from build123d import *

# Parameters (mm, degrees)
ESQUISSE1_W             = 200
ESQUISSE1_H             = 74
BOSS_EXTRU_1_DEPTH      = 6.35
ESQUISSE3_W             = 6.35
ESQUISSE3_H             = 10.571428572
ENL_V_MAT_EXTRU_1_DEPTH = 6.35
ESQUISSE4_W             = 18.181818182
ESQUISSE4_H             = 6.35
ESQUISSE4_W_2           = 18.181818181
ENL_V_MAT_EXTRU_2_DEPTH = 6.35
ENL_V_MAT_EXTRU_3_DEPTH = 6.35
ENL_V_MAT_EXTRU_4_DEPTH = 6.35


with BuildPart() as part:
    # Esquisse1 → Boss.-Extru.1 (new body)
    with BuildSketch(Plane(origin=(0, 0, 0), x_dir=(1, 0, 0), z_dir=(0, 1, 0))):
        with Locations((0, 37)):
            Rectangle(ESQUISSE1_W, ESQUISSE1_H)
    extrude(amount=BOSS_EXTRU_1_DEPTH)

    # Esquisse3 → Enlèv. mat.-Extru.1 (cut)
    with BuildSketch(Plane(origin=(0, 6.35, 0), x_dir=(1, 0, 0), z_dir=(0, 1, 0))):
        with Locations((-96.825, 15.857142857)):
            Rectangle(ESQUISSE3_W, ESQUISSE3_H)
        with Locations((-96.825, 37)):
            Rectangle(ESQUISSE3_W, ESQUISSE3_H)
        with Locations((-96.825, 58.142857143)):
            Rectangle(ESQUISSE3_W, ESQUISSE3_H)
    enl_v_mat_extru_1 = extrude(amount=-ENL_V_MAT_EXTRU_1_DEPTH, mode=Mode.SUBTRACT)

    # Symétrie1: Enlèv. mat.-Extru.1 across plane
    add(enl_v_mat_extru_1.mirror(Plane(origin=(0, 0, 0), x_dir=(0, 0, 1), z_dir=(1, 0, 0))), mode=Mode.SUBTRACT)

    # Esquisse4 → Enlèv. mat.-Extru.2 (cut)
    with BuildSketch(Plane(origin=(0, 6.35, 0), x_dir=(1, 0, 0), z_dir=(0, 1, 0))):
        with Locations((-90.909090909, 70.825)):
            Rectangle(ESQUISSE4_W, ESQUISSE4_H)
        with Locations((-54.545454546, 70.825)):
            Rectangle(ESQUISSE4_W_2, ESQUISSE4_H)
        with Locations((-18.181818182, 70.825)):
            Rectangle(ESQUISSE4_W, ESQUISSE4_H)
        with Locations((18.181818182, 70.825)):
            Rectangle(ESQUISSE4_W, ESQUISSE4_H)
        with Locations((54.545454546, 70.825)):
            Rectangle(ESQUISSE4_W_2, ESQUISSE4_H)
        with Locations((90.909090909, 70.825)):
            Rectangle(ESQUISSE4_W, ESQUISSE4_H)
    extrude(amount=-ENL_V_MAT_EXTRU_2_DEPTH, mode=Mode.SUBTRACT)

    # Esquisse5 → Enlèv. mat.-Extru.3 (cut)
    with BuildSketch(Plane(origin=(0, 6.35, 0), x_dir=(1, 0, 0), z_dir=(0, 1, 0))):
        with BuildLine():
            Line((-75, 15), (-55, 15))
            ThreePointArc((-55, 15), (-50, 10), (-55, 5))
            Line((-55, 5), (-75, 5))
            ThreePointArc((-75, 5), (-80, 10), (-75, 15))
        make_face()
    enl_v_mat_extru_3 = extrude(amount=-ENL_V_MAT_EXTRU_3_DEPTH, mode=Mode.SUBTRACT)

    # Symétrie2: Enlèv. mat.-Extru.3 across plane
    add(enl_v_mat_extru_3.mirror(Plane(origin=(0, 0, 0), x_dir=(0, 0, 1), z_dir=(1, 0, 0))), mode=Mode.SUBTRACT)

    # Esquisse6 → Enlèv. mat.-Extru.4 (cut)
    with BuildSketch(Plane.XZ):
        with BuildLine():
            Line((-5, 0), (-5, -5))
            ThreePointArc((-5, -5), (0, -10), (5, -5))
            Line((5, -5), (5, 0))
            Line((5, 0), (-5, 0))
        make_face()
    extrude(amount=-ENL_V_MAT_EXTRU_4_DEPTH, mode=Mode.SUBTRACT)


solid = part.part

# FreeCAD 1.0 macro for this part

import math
import FreeCAD as App
import Part
import Sketcher


def add_polygon(sketch, points):
    """Adds a closed chain of lines whose ends are joined by coincident constraints."""
    first, n = sketch.GeometryCount, len(points)
    for a, b in zip(points, points[1:] + points[:1]):
        sketch.addGeometry(Part.LineSegment(App.Vector(*a, 0), App.Vector(*b, 0)), False)
    for i in range(n):
        sketch.addConstraint(Sketcher.Constraint("Coincident", first + i, 2, first + (i + 1) % n, 1))

doc = App.newDocument("Part")
body = doc.addObject("PartDesign::Body", "Body")

sketch1 = body.newObject("Sketcher::SketchObject", "Sketch")
sketch1.AttachmentSupport = (doc.getObject("XZ_Plane"), [""])
sketch1.MapMode = "FlatFace"
add_polygon(sketch1, [(-100, -74), (-100, 0), (100, 0), (100, -74)])
sketch1.addConstraint(Sketcher.Constraint("Vertical", 0))
sketch1.addConstraint(Sketcher.Constraint("Horizontal", 1))
sketch1.addConstraint(Sketcher.Constraint("Vertical", 2))
sketch1.addConstraint(Sketcher.Constraint("Horizontal", 3))
sketch1.addConstraint(Sketcher.Constraint("Symmetric", 0, 2, 1, 2, -1, 1))
sketch1.addConstraint(Sketcher.Constraint("DistanceX", 1, 1, 1, 2, 200.0))
sketch1.addConstraint(Sketcher.Constraint("DistanceY", 0, 1, 0, 2, 74.0))
pad1 = body.newObject("PartDesign::Pad", "Pad")
pad1.Profile = sketch1
pad1.Length = 6.35
pad1.Reversed = True

sketch2 = body.newObject("Sketcher::SketchObject", "Sketch001")
sketch2.AttachmentSupport = (doc.getObject("XZ_Plane"), [""])
sketch2.MapMode = "FlatFace"
sketch2.AttachmentOffset = App.Placement(App.Vector(0, 0, -6.35), App.Rotation())
add_polygon(sketch2, [(-100, -21), (-100, -11), (-94, -11), (-94, -21)])
add_polygon(sketch2, [(-100, -42), (-100, -32), (-94, -32), (-94, -42)])
add_polygon(sketch2, [(-100, -63), (-100, -53), (-94, -53), (-94, -63)])
sketch2.addConstraint(Sketcher.Constraint("Vertical", 0))
sketch2.addConstraint(Sketcher.Constraint("Horizontal", 1))
sketch2.addConstraint(Sketcher.Constraint("Vertical", 2))
sketch2.addConstraint(Sketcher.Constraint("Horizontal", 3))
sketch2.addConstraint(Sketcher.Constraint("Vertical", 4))
sketch2.addConstraint(Sketcher.Constraint("Horizontal", 5))
sketch2.addConstraint(Sketcher.Constraint("Vertical", 6))
sketch2.addConstraint(Sketcher.Constraint("Horizontal", 7))
sketch2.addConstraint(Sketcher.Constraint("Vertical", 8))
sketch2.addConstraint(Sketcher.Constraint("Horizontal", 9))
sketch2.addConstraint(Sketcher.Constraint("Vertical", 10))
sketch2.addConstraint(Sketcher.Constraint("Horizontal", 11))
sketch2.addConstraint(Sketcher.Constraint("Vertical", 3, 2, 4, 2))
sketch2.addConstraint(Sketcher.Constraint("Vertical", 2, 2, 5, 2))
sketch2.addConstraint(Sketcher.Constraint("Vertical", 7, 2, 8, 2))
sketch2.addConstraint(Sketcher.Constraint("Vertical", 6, 2, 9, 2))
sketch2.addConstraint(Sketcher.Constraint("Equal", 2, 4))
sketch2.addConstraint(Sketcher.Constraint("Equal", 6, 8))
sketch2.addConstraint(Sketcher.Constraint("DistanceX", 0, 2, -1, 1, 100.0))
sketch2.addConstraint(Sketcher.Constraint("DistanceX", 1, 1, 1, 2, 6.35))
sketch2.addConstraint(Sketcher.Constraint("DistanceY", 0, 1, 0, 2, 10.571429))
sketch2.addConstraint(Sketcher.Constraint("DistanceY", 0, 2, -1, 1, 10.571429))
sketch2.addConstraint(Sketcher.Constraint("DistanceY", 10, 2, -1, 1, 63.428571))
sketch2.addConstraint(Sketcher.Constraint("DistanceY", 4, 2, 3, 2, 10.571429))
pocket1 = body.newObject("PartDesign::Pocket", "Pocket")
pocket1.Profile = sketch2
pocket1.Length = 6.35
pocket1.Reversed = True
doc.recompute()

mirrored = body.newObject("PartDesign::Mirrored", "Mirrored")
mirrored.Originals = [pocket1]
mirrored.MirrorPlane = (doc.getObject("YZ_Plane"), [""])
body.Tip = mirrored

sketch3 = body.newObject("Sketcher::SketchObject", "Sketch002")
sketch3.AttachmentSupport = (doc.getObject("XZ_Plane"), [""])
sketch3.MapMode = "FlatFace"
sketch3.AttachmentOffset = App.Placement(App.Vector(0, 0, -6.35), App.Rotation())
add_polygon(sketch3, [(-100, -74), (-100, -68), (-82, -68), (-82, -74)])
add_polygon(sketch3, [(-64, -74), (-64, -68), (-45, -68), (-45, -74)])
add_polygon(sketch3, [(-27, -74), (-27, -68), (-9, -68), (-9, -74)])
add_polygon(sketch3, [(9, -74), (9, -68), (27, -68), (27, -74)])
add_polygon(sketch3, [(45, -74), (45, -68), (64, -68), (64, -74)])
add_polygon(sketch3, [(82, -74), (82, -68), (100, -68), (100, -74)])
sketch3.addConstraint(Sketcher.Constraint("Vertical", 0))
sketch3.addConstraint(Sketcher.Constraint("Horizontal", 1))
sketch3.addConstraint(Sketcher.Constraint("Vertical", 2))
sketch3.addConstraint(Sketcher.Constraint("Horizontal", 3))
sketch3.addConstraint(Sketcher.Constraint("Vertical", 4))
sketch3.addConstraint(Sketcher.Constraint("Horizontal", 5))
sketch3.addConstraint(Sketcher.Constraint("Vertical", 6))
sketch3.addConstraint(Sketcher.Constraint("Horizontal", 7))
sketch3.addConstraint(Sketcher.Constraint("Vertical", 8))
sketch3.addConstraint(Sketcher.Constraint("Horizontal", 9))
sketch3.addConstraint(Sketcher.Constraint("Vertical", 10))
sketch3.addConstraint(Sketcher.Constraint("Horizontal", 11))
sketch3.addConstraint(Sketcher.Constraint("Vertical", 12))
sketch3.addConstraint(Sketcher.Constraint("Horizontal", 13))
sketch3.addConstraint(Sketcher.Constraint("Vertical", 14))
sketch3.addConstraint(Sketcher.Constraint("Horizontal", 15))
sketch3.addConstraint(Sketcher.Constraint("Vertical", 16))
sketch3.addConstraint(Sketcher.Constraint("Horizontal", 17))
sketch3.addConstraint(Sketcher.Constraint("Vertical", 18))
sketch3.addConstraint(Sketcher.Constraint("Horizontal", 19))
sketch3.addConstraint(Sketcher.Constraint("Vertical", 20))
sketch3.addConstraint(Sketcher.Constraint("Horizontal", 21))
sketch3.addConstraint(Sketcher.Constraint("Vertical", 22))
sketch3.addConstraint(Sketcher.Constraint("Horizontal", 23))
sketch3.addConstraint(Sketcher.Constraint("Symmetric", 9, 2, 12, 2, -2))
sketch3.addConstraint(Sketcher.Constraint("Symmetric", 11, 2, 14, 2, -2))
sketch3.addConstraint(Sketcher.Constraint("Symmetric", 5, 2, 16, 2, -2))
sketch3.addConstraint(Sketcher.Constraint("Symmetric", 7, 2, 18, 2, -2))
sketch3.addConstraint(Sketcher.Constraint("Symmetric", 1, 2, 20, 2, -2))
sketch3.addConstraint(Sketcher.Constraint("Symmetric", 3, 2, 22, 2, -2))
sketch3.addConstraint(Sketcher.Constraint("Horizontal", 1, 2, 4, 2))
sketch3.addConstraint(Sketcher.Constraint("Horizontal", 3, 2, 6, 2))
sketch3.addConstraint(Sketcher.Constraint("Horizontal", 5, 2, 8, 2))
sketch3.addConstraint(Sketcher.Constraint("Horizontal", 7, 2, 10, 2))
sketch3.addConstraint(Sketcher.Constraint("Equal", 3, 5))
sketch3.addConstraint(Sketcher.Constraint("Equal", 7, 9))
sketch3.addConstraint(Sketcher.Constraint("DistanceX", 0, 2, -1, 1, 100.0))
sketch3.addConstraint(Sketcher.Constraint("DistanceY", 2, 2, -1, 1, 74.0))
sketch3.addConstraint(Sketcher.Constraint("DistanceY", 0, 1, 0, 2, 6.35))
sketch3.addConstraint(Sketcher.Constraint("DistanceX", 1, 1, 1, 2, 18.181818))
sketch3.addConstraint(Sketcher.Constraint("DistanceX", 9, 2, -1, 1, 9.090909))
sketch3.addConstraint(Sketcher.Constraint("DistanceX", 1, 2, 4, 2, 18.181818))
pocket2 = body.newObject("PartDesign::Pocket", "Pocket001")
pocket2.Profile = sketch3
pocket2.Length = 6.35
pocket2.Reversed = True

sketch4 = body.newObject("Sketcher::SketchObject", "Sketch003")
sketch4.AttachmentSupport = (doc.getObject("XZ_Plane"), [""])
sketch4.MapMode = "FlatFace"
sketch4.AttachmentOffset = App.Placement(App.Vector(0, 0, -6.35), App.Rotation())
sketch4.addGeometry(Part.LineSegment(App.Vector(-55, -15, 0), App.Vector(-75, -15, 0)), False)
sketch4.addGeometry(Part.ArcOfCircle(Part.Circle(App.Vector(-75, -10, 0), App.Vector(0, 0, 1), 5), math.radians(90), math.radians(270)), False)
sketch4.addGeometry(Part.LineSegment(App.Vector(-75, -5, 0), App.Vector(-55, -5, 0)), False)
sketch4.addGeometry(Part.ArcOfCircle(Part.Circle(App.Vector(-55, -10, 0), App.Vector(0, 0, 1), 5), math.radians(-90), math.radians(90)), False)
sketch4.addConstraint(Sketcher.Constraint("Tangent", 0, 2, 1, 2))
sketch4.addConstraint(Sketcher.Constraint("Tangent", 1, 1, 2, 1))
sketch4.addConstraint(Sketcher.Constraint("Tangent", 2, 2, 3, 2))
sketch4.addConstraint(Sketcher.Constraint("Tangent", 3, 1, 0, 1))
sketch4.addConstraint(Sketcher.Constraint("Horizontal", 0))
sketch4.addConstraint(Sketcher.Constraint("Horizontal", 2))
sketch4.addConstraint(Sketcher.Constraint("Radius", 1, 5.0))
sketch4.addConstraint(Sketcher.Constraint("DistanceX", 0, 2, 0, 1, 20.0))
sketch4.addConstraint(Sketcher.Constraint("DistanceX", 1, 3, -1, 1, 75.0))
sketch4.addConstraint(Sketcher.Constraint("DistanceY", 1, 3, -1, 1, 10.0))
pocket3 = body.newObject("PartDesign::Pocket", "Pocket002")
pocket3.Profile = sketch4
pocket3.Length = 6.35
pocket3.Reversed = True
doc.recompute()

mirrored2 = body.newObject("PartDesign::Mirrored", "Mirrored001")
mirrored2.Originals = [pocket3]
mirrored2.MirrorPlane = (doc.getObject("YZ_Plane"), [""])
body.Tip = mirrored2

sketch5 = body.newObject("Sketcher::SketchObject", "Sketch004")
sketch5.AttachmentSupport = (doc.getObject("XZ_Plane"), [""])
sketch5.MapMode = "FlatFace"
sketch5.addGeometry(Part.LineSegment(App.Vector(-5, 0, 0), App.Vector(-5, -5, 0)), False)
sketch5.addGeometry(Part.ArcOfCircle(Part.Circle(App.Vector(0, -5, 0), App.Vector(0, 0, 1), 5), math.radians(180), math.radians(360)), False)
sketch5.addGeometry(Part.LineSegment(App.Vector(5, -5, 0), App.Vector(5, 0, 0)), False)
sketch5.addGeometry(Part.LineSegment(App.Vector(5, 0, 0), App.Vector(-5, 0, 0)), False)
sketch5.addConstraint(Sketcher.Constraint("Tangent", 0, 2, 1, 1))
sketch5.addConstraint(Sketcher.Constraint("Tangent", 1, 2, 2, 1))
sketch5.addConstraint(Sketcher.Constraint("Coincident", 2, 2, 3, 1))
sketch5.addConstraint(Sketcher.Constraint("Coincident", 3, 2, 0, 1))
sketch5.addConstraint(Sketcher.Constraint("Vertical", 0))
sketch5.addConstraint(Sketcher.Constraint("Vertical", 2))
sketch5.addConstraint(Sketcher.Constraint("Horizontal", 3))
sketch5.addConstraint(Sketcher.Constraint("Symmetric", 2, 2, 3, 2, -1, 1))
sketch5.addConstraint(Sketcher.Constraint("Radius", 1, 5.0))
sketch5.addConstraint(Sketcher.Constraint("DistanceY", 0, 2, 0, 1, 5.0))
pocket4 = body.newObject("PartDesign::Pocket", "Pocket003")
pocket4.Profile = sketch5
pocket4.Length = 6.35

doc.recompute()
